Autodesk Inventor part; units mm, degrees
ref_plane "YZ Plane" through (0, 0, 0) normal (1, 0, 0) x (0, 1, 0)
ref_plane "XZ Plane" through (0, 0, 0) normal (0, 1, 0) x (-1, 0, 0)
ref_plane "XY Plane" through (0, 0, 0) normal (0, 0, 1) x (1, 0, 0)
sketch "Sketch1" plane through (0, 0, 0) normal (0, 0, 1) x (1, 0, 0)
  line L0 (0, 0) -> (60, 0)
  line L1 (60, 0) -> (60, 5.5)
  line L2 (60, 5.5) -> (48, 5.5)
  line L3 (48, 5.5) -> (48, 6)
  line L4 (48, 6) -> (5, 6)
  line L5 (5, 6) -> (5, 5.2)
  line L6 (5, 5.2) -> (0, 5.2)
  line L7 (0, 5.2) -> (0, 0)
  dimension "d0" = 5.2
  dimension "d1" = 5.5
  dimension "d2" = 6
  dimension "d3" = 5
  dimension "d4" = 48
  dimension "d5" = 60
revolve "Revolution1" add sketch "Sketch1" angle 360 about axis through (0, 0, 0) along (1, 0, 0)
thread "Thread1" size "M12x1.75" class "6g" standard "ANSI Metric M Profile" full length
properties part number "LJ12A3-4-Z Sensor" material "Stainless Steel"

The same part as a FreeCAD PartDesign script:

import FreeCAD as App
import Part
import Sketcher

V = App.Vector
Q = App.Units.Quantity

doc = App.newDocument("Part")
body = doc.addObject("PartDesign::Body", "Body")

# Sketch on XY plane
sketch1 = doc.addObject("Sketcher::SketchObject", "Sketch")
body.addObject(sketch1)
sketch1.AttachmentSupport = (doc.XY_Plane, [""])
sketch1.MapMode = "FlatFace"
sketch1.addGeometry(Part.LineSegment(V(0, 5.2, 0), V(0, 0, 0)), False)
sketch1.addGeometry(Part.LineSegment(V(0, 0, 0), V(60, 0, 0)), False)
sketch1.addGeometry(Part.LineSegment(V(60, 0, 0), V(60, 5.5, 0)), False)
sketch1.addGeometry(Part.LineSegment(V(60, 5.5, 0), V(48, 5.5, 0)), False)
sketch1.addGeometry(Part.LineSegment(V(48, 5.5, 0), V(48, 6, 0)), False)
sketch1.addGeometry(Part.LineSegment(V(48, 6, 0), V(5, 6, 0)), False)
sketch1.addGeometry(Part.LineSegment(V(5, 6, 0), V(5, 5.2, 0)), False)
sketch1.addGeometry(Part.LineSegment(V(5, 5.2, 0), V(0, 5.2, 0)), False)
sketch1.addConstraint(Sketcher.Constraint("Coincident", 0, 2, 1, 1))
sketch1.addConstraint(Sketcher.Constraint("Coincident", 1, 2, 2, 1))
sketch1.addConstraint(Sketcher.Constraint("Coincident", 2, 2, 3, 1))
sketch1.addConstraint(Sketcher.Constraint("Coincident", 3, 2, 4, 1))
sketch1.addConstraint(Sketcher.Constraint("Coincident", 4, 2, 5, 1))
sketch1.addConstraint(Sketcher.Constraint("Coincident", 5, 2, 6, 1))
sketch1.addConstraint(Sketcher.Constraint("Coincident", 6, 2, 7, 1))
sketch1.addConstraint(Sketcher.Constraint("Coincident", 7, 2, 0, 1))
sketch1.addConstraint(Sketcher.Constraint("Vertical", 0))
sketch1.addConstraint(Sketcher.Constraint("Horizontal", 1))
sketch1.addConstraint(Sketcher.Constraint("Vertical", 2))
sketch1.addConstraint(Sketcher.Constraint("Horizontal", 3))
sketch1.addConstraint(Sketcher.Constraint("Vertical", 4))
sketch1.addConstraint(Sketcher.Constraint("Horizontal", 5))
sketch1.addConstraint(Sketcher.Constraint("Vertical", 6))
sketch1.addConstraint(Sketcher.Constraint("Horizontal", 7))
sketch1.addConstraint(Sketcher.Constraint("Coincident", 0, 2, -1, 1))
sketch1.addConstraint(Sketcher.Constraint("DistanceX", 1, 1, 1, 2, Q("60 mm")))
sketch1.addConstraint(Sketcher.Constraint("DistanceX", 7, 2, 7, 1, Q("5 mm")))
sketch1.addConstraint(Sketcher.Constraint("DistanceY", 0, 2, 0, 1, Q("5.2 mm")))
sketch1.addConstraint(Sketcher.Constraint("DistanceY", 2, 1, 2, 2, Q("5.5 mm")))
sketch1.addConstraint(Sketcher.Constraint("DistanceX", -1, 1, 3, 2, Q("48 mm")))
sketch1.addConstraint(Sketcher.Constraint("DistanceY", -1, 1, 4, 2, Q("6 mm")))
revolution = doc.addObject("PartDesign::Revolution", "Revolution")
body.addObject(revolution)
revolution.Profile = sketch1
revolution.ReferenceAxis = (sketch1, ["H_Axis"])
revolution.Angle = 360

doc.recompute()
